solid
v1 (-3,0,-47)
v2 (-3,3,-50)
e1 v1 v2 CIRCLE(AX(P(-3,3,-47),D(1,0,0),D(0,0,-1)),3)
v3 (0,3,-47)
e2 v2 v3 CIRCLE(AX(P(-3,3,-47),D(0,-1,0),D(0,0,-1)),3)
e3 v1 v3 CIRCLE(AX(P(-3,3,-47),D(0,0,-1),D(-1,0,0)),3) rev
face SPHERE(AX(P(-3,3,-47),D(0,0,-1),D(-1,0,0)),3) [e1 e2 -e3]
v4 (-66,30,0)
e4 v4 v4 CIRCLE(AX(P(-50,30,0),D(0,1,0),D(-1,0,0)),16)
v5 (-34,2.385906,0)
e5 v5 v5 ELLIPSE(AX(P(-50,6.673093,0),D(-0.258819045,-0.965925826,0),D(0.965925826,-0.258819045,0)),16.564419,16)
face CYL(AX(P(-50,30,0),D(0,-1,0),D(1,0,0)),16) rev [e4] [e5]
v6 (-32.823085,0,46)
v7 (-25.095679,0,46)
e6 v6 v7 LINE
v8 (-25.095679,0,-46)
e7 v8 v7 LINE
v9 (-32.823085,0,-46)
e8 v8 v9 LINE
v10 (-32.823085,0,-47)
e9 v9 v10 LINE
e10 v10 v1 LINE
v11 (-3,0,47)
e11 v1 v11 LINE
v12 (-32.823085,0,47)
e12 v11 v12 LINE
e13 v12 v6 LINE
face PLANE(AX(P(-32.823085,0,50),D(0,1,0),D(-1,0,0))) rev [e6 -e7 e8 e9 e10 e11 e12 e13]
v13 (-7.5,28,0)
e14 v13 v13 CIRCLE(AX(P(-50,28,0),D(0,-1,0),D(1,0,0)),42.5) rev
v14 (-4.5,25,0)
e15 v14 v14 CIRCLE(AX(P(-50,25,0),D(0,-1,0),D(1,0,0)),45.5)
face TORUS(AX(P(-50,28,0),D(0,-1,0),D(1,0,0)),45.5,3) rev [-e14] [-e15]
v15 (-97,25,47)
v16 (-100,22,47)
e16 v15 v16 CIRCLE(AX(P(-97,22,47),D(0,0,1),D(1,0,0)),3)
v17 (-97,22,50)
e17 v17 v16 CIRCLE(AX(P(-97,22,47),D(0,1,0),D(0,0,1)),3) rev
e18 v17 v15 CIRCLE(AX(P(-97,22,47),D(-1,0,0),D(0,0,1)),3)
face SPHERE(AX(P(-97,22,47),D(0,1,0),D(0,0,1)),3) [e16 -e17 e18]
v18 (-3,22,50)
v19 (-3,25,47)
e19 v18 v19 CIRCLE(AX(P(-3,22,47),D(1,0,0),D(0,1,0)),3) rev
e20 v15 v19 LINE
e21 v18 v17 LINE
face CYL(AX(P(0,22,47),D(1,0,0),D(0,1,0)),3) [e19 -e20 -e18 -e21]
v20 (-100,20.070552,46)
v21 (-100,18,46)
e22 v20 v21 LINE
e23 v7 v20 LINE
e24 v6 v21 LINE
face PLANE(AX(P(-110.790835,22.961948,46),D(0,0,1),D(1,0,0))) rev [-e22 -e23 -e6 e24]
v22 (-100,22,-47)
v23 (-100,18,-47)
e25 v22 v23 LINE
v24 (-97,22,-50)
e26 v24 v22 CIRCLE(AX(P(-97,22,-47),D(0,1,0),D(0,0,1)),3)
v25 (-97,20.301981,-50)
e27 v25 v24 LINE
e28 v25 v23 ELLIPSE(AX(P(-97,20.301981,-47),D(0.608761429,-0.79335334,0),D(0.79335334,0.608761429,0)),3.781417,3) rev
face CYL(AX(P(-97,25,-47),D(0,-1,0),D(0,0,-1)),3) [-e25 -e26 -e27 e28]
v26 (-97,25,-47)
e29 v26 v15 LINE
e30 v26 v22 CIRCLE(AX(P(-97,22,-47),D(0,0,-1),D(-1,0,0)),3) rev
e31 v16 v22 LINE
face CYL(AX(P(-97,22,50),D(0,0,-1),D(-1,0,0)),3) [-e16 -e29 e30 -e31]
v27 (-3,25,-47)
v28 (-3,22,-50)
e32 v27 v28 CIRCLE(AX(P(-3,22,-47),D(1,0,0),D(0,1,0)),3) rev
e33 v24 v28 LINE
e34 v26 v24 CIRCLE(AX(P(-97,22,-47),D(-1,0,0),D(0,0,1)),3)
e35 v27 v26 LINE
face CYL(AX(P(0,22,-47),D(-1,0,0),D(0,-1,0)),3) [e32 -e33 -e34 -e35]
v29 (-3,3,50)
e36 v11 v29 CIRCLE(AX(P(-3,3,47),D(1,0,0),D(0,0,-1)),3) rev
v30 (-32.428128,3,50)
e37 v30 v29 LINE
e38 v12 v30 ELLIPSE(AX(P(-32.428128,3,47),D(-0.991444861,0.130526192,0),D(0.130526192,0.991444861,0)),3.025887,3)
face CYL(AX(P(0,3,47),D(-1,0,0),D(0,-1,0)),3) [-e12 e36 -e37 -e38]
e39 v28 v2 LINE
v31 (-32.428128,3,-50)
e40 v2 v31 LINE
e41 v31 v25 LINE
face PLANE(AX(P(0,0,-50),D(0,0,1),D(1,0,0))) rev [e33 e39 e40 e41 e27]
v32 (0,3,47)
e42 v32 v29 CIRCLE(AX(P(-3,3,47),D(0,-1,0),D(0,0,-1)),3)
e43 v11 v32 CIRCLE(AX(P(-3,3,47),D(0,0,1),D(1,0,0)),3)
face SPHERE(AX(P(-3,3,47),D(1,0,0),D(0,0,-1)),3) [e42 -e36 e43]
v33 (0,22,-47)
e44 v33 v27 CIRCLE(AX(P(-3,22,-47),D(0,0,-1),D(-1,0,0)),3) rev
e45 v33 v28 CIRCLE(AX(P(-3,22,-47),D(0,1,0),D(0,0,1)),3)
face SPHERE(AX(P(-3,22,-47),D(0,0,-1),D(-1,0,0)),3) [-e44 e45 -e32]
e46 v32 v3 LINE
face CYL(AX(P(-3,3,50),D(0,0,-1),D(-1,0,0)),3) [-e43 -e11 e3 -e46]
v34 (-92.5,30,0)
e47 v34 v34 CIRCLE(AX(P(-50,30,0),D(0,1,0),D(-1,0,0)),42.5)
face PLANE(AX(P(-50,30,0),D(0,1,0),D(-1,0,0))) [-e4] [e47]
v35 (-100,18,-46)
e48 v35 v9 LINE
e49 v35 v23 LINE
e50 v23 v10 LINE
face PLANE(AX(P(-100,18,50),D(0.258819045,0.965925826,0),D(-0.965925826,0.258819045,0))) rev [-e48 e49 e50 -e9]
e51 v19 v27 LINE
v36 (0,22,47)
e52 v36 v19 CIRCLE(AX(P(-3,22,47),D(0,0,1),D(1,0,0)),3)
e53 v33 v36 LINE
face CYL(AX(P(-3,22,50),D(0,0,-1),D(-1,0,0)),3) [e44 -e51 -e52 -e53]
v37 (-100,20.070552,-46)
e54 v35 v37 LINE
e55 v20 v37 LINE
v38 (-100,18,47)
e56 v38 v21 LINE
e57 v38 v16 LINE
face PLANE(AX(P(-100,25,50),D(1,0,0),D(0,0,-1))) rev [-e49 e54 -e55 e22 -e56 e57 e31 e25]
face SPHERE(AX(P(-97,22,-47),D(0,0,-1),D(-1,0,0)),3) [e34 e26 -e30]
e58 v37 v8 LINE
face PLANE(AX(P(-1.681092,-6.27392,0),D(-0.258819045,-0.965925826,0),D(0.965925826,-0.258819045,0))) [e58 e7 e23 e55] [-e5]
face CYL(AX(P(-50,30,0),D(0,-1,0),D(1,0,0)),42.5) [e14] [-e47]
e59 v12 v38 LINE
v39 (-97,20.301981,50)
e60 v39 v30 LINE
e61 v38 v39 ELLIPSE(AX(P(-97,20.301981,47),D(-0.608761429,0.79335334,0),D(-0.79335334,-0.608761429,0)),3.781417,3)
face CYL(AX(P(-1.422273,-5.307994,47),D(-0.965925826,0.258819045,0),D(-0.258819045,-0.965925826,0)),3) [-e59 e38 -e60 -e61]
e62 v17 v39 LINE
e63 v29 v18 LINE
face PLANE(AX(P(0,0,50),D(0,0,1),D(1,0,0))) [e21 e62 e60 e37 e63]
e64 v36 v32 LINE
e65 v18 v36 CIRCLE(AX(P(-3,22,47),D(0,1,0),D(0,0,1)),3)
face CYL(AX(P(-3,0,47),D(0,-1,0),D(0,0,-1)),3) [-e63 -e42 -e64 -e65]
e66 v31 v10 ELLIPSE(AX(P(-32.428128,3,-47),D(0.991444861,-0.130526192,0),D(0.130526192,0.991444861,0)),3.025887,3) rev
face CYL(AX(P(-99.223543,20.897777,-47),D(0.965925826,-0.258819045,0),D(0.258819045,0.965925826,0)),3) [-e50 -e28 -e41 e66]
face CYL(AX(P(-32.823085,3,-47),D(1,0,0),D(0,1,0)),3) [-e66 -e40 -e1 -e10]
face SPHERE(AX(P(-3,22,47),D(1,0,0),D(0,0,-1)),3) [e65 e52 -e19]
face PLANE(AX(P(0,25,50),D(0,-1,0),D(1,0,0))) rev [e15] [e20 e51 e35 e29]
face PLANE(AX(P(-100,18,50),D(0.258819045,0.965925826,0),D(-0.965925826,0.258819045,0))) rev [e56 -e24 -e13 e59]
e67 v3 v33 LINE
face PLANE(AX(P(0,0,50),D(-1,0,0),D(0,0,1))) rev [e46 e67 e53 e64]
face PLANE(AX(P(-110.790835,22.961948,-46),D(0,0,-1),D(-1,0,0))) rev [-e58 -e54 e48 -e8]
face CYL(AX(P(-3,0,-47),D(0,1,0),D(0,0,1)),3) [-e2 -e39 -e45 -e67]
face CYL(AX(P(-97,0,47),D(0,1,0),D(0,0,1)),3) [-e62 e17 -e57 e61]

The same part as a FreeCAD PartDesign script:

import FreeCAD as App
import Part
import Sketcher
from FreeCAD import Vector
Q = App.Units.Quantity


def edges_at(feature, points):
    """Names of the edges that pass closest to the given points."""
    edges = feature.Shape.Edges
    near = lambda p: min(range(len(edges)), key=lambda i: edges[i].distToShape(Part.Vertex(*p))[0])
    return sorted({f"Edge{near(p) + 1}" for p in points})

doc = App.newDocument("Part")
params = doc.addObject("Spreadsheet::Sheet", "Params")
for row, (alias, value) in enumerate([
    ("sketch1_width", "100 mm"),
    ("sketch1_height", "25 mm"),
    ("sketch1_height2", "7 mm"),
    ("pad1_length", "100 mm"),
    ("sketch2_diameter", "85 mm"),
    ("sketch2_diameter2", "32 mm"),
    ("pad2_length", "5 mm"),
    ("sketch3_diameter", "32 mm"),
    ("sketch4_height", "92 mm"),
    ("pocket2_length", "2 mm"),
    ("fillet_radius", "3 mm"),
], start=1):
    params.set(f"A{row}", alias)
    params.set(f"B{row}", "=" + value)
    params.setAlias(f"B{row}", alias)

body = doc.addObject("PartDesign::Body", "Body")

# Sketch on XY plane
sketch1 = body.newObject("Sketcher::SketchObject", "Sketch")
sketch1.AttachmentSupport = (doc.getObject("XY_Plane"), [""])
sketch1.MapMode = "FlatFace"
sketch1.addGeometry(Part.LineSegment(Vector(0, 0, 0), Vector(0, 25, 0)), False)
sketch1.addGeometry(Part.LineSegment(Vector(0, 25, 0), Vector(-100, 25, 0)), False)
sketch1.addGeometry(Part.LineSegment(Vector(-100, 25, 0), Vector(-100, 18, 0)), False)
sketch1.addGeometry(Part.LineSegment(Vector(-100, 18, 0), Vector(-32.823085, 0, 0)), False)
sketch1.addGeometry(Part.LineSegment(Vector(-32.823085, 0, 0), Vector(0, 0, 0)), False)
sketch1.addConstraint(Sketcher.Constraint("Coincident", 0, 2, 1, 1))
sketch1.addConstraint(Sketcher.Constraint("Coincident", 1, 2, 2, 1))
sketch1.addConstraint(Sketcher.Constraint("Coincident", 2, 2, 3, 1))
sketch1.addConstraint(Sketcher.Constraint("Coincident", 3, 2, 4, 1))
sketch1.addConstraint(Sketcher.Constraint("Coincident", 4, 2, 0, 1))
sketch1.addConstraint(Sketcher.Constraint("Vertical", 0))
sketch1.addConstraint(Sketcher.Constraint("Horizontal", 1))
sketch1.addConstraint(Sketcher.Constraint("Vertical", 2))
sketch1.addConstraint(Sketcher.Constraint("Horizontal", 4))
sketch1.addConstraint(Sketcher.Constraint("Coincident", 4, 2, -1, 1))
sketch1.addConstraint(Sketcher.Constraint("DistanceX", 1, 2, 1, 1, 100.0))
sketch1.addConstraint(Sketcher.Constraint("DistanceY", 0, 1, 0, 2, 25.0))
sketch1.addConstraint(Sketcher.Constraint("DistanceY", 2, 2, 2, 1, 7.0))
sketch1.addConstraint(Sketcher.Constraint("Angle", 3, Q("-15 deg")))
sketch1.setExpression("Constraints[10]", "Params.sketch1_width")
sketch1.setExpression("Constraints[11]", "Params.sketch1_height")
sketch1.setExpression("Constraints[12]", "Params.sketch1_height2")
pad1 = body.newObject("PartDesign::Pad", "Pad")
pad1.Profile = sketch1
pad1.setExpression("Length", "Params.pad1_length")
pad1.Midplane = True

# Sketch on XZ plane
sketch2 = body.newObject("Sketcher::SketchObject", "Sketch001")
sketch2.AttachmentSupport = (doc.getObject("XZ_Plane"), [""])
sketch2.MapMode = "FlatFace"
sketch2.AttachmentOffset = App.Placement(Vector(0, 0, -25), App.Rotation())
sketch2.addGeometry(Part.Circle(Vector(-50, 0, 0), Vector(0, 0, 1), 42.5), False)
sketch2.addGeometry(Part.Circle(Vector(-50, 0, 0), Vector(0, 0, 1), 16), False)
sketch2.addConstraint(Sketcher.Constraint("Coincident", 1, 3, 0, 3))
sketch2.addConstraint(Sketcher.Constraint("PointOnObject", 0, 3, -1))
sketch2.addConstraint(Sketcher.Constraint("Diameter", 0, 85.0))
sketch2.addConstraint(Sketcher.Constraint("Diameter", 1, 32.0))
sketch2.addConstraint(Sketcher.Constraint("DistanceX", 0, 3, -1, 1, 50.0))
sketch2.setExpression("Constraints[2]", "Params.sketch2_diameter")
sketch2.setExpression("Constraints[3]", "Params.sketch2_diameter2")
pad2 = body.newObject("PartDesign::Pad", "Pad001")
pad2.Profile = sketch2
pad2.setExpression("Length", "Params.pad2_length")
pad2.Reversed = True

# Sketch on XZ plane
sketch3 = body.newObject("Sketcher::SketchObject", "Sketch002")
sketch3.AttachmentSupport = (doc.getObject("XZ_Plane"), [""])
sketch3.MapMode = "FlatFace"
sketch3.AttachmentOffset = App.Placement(Vector(0, 0, -25), App.Rotation())
sketch3.addGeometry(Part.Circle(Vector(-50, 0, 0), Vector(0, 0, 1), 16), False)
sketch3.addConstraint(Sketcher.Constraint("PointOnObject", 0, 3, -1))
sketch3.addConstraint(Sketcher.Constraint("Diameter", 0, 32.0))
sketch3.addConstraint(Sketcher.Constraint("DistanceX", 0, 3, -1, 1, 50.0))
sketch3.setExpression("Constraints[1]", "Params.sketch3_diameter")
pocket1 = body.newObject("PartDesign::Pocket", "Pocket")
pocket1.Profile = sketch3
pocket1.Type = "ThroughAll"
pocket1.Reversed = True

# Sketch on an angled plane
sketch4 = body.newObject("Sketcher::SketchObject", "Sketch003")
sketch4.Placement = App.Placement(Vector(-2.19873, -8.205771, 0), App.Rotation(Vector(0.965925826, -0.258819045, 0), Vector(0, 0, 0.999999999), Vector(-0.258819045, -0.965925826, 0), "ZXY"))
sketch4.addGeometry(Part.LineSegment(Vector(-112.958718, 46, 0), Vector(-112.958718, -46, 0)), False)
sketch4.addGeometry(Part.LineSegment(Vector(-112.958718, -46, 0), Vector(-12.913943, -46, 0)), False)
sketch4.addGeometry(Part.LineSegment(Vector(-12.913943, -46, 0), Vector(-12.913943, 46, 0)), False)
sketch4.addGeometry(Part.LineSegment(Vector(-12.913943, 46, 0), Vector(-112.958718, 46, 0)), False)
sketch4.addConstraint(Sketcher.Constraint("Coincident", 0, 2, 1, 1))
sketch4.addConstraint(Sketcher.Constraint("Coincident", 1, 2, 2, 1))
sketch4.addConstraint(Sketcher.Constraint("Coincident", 2, 2, 3, 1))
sketch4.addConstraint(Sketcher.Constraint("Coincident", 3, 2, 0, 1))
sketch4.addConstraint(Sketcher.Constraint("Vertical", 0))
sketch4.addConstraint(Sketcher.Constraint("Horizontal", 1))
sketch4.addConstraint(Sketcher.Constraint("Vertical", 2))
sketch4.addConstraint(Sketcher.Constraint("Horizontal", 3))
sketch4.addConstraint(Sketcher.Constraint("DistanceY", 0, 2, 0, 1, 92.0))
sketch4.addConstraint(Sketcher.Constraint("DistanceY", 0, 2, -1, 1, 46.0))
sketch4.addConstraint(Sketcher.Constraint("DistanceX", 1, 1, 1, 2, 100.044775))
sketch4.addConstraint(Sketcher.Constraint("DistanceX", 0, 2, -1, 1, 112.958718))
sketch4.setExpression("Constraints[8]", "Params.sketch4_height")
pocket2 = body.newObject("PartDesign::Pocket", "Pocket001")
pocket2.Profile = sketch4
pocket2.setExpression("Length", "Params.pocket2_length")
doc.recompute()

fillet = body.newObject("PartDesign::Fillet", "Fillet")
fillet.Base = (pocket2, edges_at(pocket2, [
    (-50, 25, 50),
    (-100, 21.5, 50),
    (-92.5, 25, 0),
    (-66.412, 9, 50),
    (-16.412, 0, 50),
    (-66.412, 9, -50),
    (-100, 21.5, -50),
    (-50, 25, -50),
    (0, 12.5, -50),
    (-16.412, 0, -50),
    (0, 12.5, 50),
    (-100, 25, 0),
    (0, 25, 0),
    (0, 0, 0),
]))
fillet.setExpression("Radius", "Params.fillet_radius")

doc.recompute()
